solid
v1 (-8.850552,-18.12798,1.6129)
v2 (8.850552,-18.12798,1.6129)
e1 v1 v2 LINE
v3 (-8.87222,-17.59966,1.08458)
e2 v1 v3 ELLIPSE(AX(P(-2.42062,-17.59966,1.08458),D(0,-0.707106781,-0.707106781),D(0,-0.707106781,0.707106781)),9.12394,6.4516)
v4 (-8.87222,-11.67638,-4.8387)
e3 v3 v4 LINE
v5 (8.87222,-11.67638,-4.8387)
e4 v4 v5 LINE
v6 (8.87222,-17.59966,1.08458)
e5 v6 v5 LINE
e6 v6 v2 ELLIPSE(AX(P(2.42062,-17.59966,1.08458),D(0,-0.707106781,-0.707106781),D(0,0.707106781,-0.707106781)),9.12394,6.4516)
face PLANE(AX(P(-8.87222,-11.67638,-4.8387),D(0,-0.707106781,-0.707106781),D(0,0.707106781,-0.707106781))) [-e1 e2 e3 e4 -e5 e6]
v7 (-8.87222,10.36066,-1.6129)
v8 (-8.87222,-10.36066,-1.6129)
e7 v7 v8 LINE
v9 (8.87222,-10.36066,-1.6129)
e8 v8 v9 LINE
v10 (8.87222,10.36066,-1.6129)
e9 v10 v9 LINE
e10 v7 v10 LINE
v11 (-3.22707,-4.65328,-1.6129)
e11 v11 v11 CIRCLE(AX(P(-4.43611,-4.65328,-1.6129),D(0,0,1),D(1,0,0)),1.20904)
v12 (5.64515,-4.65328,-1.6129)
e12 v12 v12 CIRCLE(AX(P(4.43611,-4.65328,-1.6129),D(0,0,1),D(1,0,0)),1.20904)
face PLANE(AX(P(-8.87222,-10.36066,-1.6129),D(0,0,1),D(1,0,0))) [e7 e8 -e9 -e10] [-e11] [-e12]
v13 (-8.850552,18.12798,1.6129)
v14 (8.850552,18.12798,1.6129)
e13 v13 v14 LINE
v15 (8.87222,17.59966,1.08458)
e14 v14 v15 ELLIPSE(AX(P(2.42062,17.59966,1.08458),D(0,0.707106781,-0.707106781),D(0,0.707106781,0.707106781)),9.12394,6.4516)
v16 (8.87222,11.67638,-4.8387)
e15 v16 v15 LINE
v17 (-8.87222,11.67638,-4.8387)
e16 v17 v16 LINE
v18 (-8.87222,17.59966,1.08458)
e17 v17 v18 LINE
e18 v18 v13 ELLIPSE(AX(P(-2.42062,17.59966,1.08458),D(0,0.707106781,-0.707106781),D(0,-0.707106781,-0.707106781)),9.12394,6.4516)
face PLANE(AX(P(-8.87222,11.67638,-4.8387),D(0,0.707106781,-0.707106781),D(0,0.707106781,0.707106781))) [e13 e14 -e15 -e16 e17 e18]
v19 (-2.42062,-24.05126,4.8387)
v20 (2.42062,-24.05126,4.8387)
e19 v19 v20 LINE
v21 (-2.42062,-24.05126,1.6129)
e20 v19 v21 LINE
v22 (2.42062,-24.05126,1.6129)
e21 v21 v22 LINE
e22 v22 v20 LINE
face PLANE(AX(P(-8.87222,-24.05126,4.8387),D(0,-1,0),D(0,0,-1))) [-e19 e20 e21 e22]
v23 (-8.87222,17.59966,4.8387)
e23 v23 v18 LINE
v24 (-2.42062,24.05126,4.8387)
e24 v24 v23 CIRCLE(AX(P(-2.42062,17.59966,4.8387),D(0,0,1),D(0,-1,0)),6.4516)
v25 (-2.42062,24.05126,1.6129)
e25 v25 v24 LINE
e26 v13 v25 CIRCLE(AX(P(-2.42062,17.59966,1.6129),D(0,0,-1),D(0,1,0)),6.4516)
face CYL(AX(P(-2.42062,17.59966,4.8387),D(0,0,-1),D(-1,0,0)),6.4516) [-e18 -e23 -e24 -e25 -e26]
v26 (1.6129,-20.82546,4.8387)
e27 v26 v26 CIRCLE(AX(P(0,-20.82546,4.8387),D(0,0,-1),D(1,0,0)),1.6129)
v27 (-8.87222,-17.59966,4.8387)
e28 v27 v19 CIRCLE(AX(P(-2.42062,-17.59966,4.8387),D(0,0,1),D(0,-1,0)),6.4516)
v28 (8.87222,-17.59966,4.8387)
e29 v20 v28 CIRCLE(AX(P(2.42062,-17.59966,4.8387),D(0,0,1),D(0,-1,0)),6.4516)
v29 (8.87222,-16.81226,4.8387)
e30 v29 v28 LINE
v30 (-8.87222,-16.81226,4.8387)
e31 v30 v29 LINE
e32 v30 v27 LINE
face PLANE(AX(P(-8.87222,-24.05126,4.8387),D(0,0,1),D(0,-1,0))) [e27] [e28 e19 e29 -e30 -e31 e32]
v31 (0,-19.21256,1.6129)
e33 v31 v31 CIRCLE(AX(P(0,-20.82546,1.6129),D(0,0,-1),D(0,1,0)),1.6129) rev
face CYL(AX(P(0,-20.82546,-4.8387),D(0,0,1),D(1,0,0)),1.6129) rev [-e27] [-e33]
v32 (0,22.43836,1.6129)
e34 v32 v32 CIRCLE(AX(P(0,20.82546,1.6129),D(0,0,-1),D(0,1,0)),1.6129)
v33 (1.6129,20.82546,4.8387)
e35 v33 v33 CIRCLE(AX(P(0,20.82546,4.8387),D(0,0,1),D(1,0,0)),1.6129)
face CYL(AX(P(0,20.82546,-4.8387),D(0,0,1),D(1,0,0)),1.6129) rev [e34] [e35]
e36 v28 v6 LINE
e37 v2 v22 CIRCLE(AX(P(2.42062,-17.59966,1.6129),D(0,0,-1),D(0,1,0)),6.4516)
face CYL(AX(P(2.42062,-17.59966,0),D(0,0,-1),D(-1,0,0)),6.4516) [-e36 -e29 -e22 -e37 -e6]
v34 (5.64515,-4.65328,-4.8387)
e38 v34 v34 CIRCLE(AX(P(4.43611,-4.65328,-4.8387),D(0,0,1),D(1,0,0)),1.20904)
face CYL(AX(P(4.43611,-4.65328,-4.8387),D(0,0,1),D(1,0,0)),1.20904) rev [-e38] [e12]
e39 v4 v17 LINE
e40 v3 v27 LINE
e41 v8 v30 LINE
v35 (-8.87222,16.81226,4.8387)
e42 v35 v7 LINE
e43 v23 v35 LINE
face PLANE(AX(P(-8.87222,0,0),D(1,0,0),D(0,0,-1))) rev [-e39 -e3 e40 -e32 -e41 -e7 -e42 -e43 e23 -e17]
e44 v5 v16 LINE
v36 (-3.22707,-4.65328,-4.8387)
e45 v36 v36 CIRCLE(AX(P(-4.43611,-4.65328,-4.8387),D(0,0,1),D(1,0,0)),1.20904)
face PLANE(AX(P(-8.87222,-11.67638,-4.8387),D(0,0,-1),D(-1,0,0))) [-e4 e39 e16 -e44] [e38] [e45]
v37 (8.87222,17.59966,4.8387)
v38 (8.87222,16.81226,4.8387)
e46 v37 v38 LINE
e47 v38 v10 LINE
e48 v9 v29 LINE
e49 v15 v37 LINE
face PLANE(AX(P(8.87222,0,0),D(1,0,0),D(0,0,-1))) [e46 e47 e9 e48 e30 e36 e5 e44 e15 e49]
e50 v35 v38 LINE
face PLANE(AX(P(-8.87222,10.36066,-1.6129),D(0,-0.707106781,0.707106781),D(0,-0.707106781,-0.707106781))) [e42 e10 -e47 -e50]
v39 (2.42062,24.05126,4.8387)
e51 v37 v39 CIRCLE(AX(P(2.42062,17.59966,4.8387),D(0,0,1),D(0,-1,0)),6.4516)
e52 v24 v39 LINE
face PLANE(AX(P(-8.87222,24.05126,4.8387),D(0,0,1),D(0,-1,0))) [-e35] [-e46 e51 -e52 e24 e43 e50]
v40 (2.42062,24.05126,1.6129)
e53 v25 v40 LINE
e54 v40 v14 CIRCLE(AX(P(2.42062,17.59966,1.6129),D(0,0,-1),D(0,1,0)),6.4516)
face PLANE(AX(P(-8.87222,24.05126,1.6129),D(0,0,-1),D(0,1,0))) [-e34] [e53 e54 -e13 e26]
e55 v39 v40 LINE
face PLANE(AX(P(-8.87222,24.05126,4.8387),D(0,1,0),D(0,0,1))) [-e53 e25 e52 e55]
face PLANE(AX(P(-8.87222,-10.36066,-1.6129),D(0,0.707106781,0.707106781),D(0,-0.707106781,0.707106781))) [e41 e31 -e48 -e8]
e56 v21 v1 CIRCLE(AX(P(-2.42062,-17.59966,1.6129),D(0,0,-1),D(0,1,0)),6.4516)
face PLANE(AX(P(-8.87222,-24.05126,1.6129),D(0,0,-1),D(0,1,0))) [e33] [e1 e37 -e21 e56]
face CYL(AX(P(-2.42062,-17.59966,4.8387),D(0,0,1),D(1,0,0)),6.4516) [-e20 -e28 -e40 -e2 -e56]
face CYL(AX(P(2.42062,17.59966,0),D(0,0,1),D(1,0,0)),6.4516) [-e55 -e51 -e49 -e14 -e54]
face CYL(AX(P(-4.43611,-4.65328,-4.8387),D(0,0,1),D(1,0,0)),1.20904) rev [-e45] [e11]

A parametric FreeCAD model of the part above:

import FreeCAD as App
import Part
import Sketcher
Q = App.Units.Quantity


def edges_at(feature, points):
    """Names of the edges that pass closest to the given points."""
    edges = feature.Shape.Edges
    near = lambda p: min(range(len(edges)), key=lambda i: edges[i].distToShape(Part.Vertex(*p))[0])
    return sorted({f"Edge{near(p) + 1}" for p in points})

doc = App.newDocument("Part")
body = doc.addObject("PartDesign::Body", "Body")

# Sketch on YZ plane
sketch1 = body.newObject("Sketcher::SketchObject", "Sketch")
sketch1.AttachmentSupport = (doc.getObject("YZ_Plane"), [""])
sketch1.MapMode = "FlatFace"
sketch1.addGeometry(Part.LineSegment(App.Vector(24.1, 1.6, 0), App.Vector(24.1, 4.8, 0)), False)
sketch1.addGeometry(Part.LineSegment(App.Vector(24.1, 4.8, 0), App.Vector(16.8, 4.8, 0)), False)
sketch1.addGeometry(Part.LineSegment(App.Vector(16.8, 4.8, 0), App.Vector(10.4, -1.6, 0)), False)
sketch1.addGeometry(Part.LineSegment(App.Vector(10.4, -1.6, 0), App.Vector(-10.4, -1.6, 0)), False)
sketch1.addGeometry(Part.LineSegment(App.Vector(-10.4, -1.6, 0), App.Vector(-16.8, 4.8, 0)), False)
sketch1.addGeometry(Part.LineSegment(App.Vector(-16.8, 4.8, 0), App.Vector(-24.1, 4.8, 0)), False)
sketch1.addGeometry(Part.LineSegment(App.Vector(-24.1, 4.8, 0), App.Vector(-24.1, 1.6, 0)), False)
sketch1.addGeometry(Part.LineSegment(App.Vector(-24.1, 1.6, 0), App.Vector(-18.1, 1.6, 0)), False)
sketch1.addGeometry(Part.LineSegment(App.Vector(-18.1, 1.6, 0), App.Vector(-11.7, -4.8, 0)), False)
sketch1.addGeometry(Part.LineSegment(App.Vector(-11.7, -4.8, 0), App.Vector(11.7, -4.8, 0)), False)
sketch1.addGeometry(Part.LineSegment(App.Vector(11.7, -4.8, 0), App.Vector(18.1, 1.6, 0)), False)
sketch1.addGeometry(Part.LineSegment(App.Vector(18.1, 1.6, 0), App.Vector(24.1, 1.6, 0)), False)
sketch1.addConstraint(Sketcher.Constraint("Coincident", 0, 2, 1, 1))
sketch1.addConstraint(Sketcher.Constraint("Coincident", 1, 2, 2, 1))
sketch1.addConstraint(Sketcher.Constraint("Coincident", 2, 2, 3, 1))
sketch1.addConstraint(Sketcher.Constraint("Coincident", 3, 2, 4, 1))
sketch1.addConstraint(Sketcher.Constraint("Coincident", 4, 2, 5, 1))
sketch1.addConstraint(Sketcher.Constraint("Coincident", 5, 2, 6, 1))
sketch1.addConstraint(Sketcher.Constraint("Coincident", 6, 2, 7, 1))
sketch1.addConstraint(Sketcher.Constraint("Coincident", 7, 2, 8, 1))
sketch1.addConstraint(Sketcher.Constraint("Coincident", 8, 2, 9, 1))
sketch1.addConstraint(Sketcher.Constraint("Coincident", 9, 2, 10, 1))
sketch1.addConstraint(Sketcher.Constraint("Coincident", 10, 2, 11, 1))
sketch1.addConstraint(Sketcher.Constraint("Coincident", 11, 2, 0, 1))
sketch1.addConstraint(Sketcher.Constraint("Vertical", 0))
sketch1.addConstraint(Sketcher.Constraint("Horizontal", 1))
sketch1.addConstraint(Sketcher.Constraint("Horizontal", 3))
sketch1.addConstraint(Sketcher.Constraint("Horizontal", 5))
sketch1.addConstraint(Sketcher.Constraint("Vertical", 6))
sketch1.addConstraint(Sketcher.Constraint("Horizontal", 7))
sketch1.addConstraint(Sketcher.Constraint("Horizontal", 9))
sketch1.addConstraint(Sketcher.Constraint("Horizontal", 11))
sketch1.addConstraint(Sketcher.Constraint("Symmetric", 1, 2, 4, 2, -2))
sketch1.addConstraint(Sketcher.Constraint("Symmetric", 7, 2, 10, 2, -2))
sketch1.addConstraint(Sketcher.Constraint("Perpendicular", 2, 4))
sketch1.addConstraint(Sketcher.Constraint("Parallel", 4, 8))
sketch1.addConstraint(Sketcher.Constraint("Perpendicular", 8, 10))
sketch1.addConstraint(Sketcher.Constraint("Equal", 1, 5))
sketch1.addConstraint(Sketcher.Constraint("Equal", 2, 4))
sketch1.addConstraint(Sketcher.Constraint("Equal", 4, 8))
sketch1.addConstraint(Sketcher.Constraint("DistanceX", 1, 2, 1, 1, Q("0.285 in")))
sketch1.addConstraint(Sketcher.Constraint("DistanceY", 0, 1, 0, 2, Q("0.127 in")))
sketch1.addConstraint(Sketcher.Constraint("DistanceX", 3, 2, 3, 1, Q("0.8158 in")))
sketch1.addConstraint(Sketcher.Constraint("DistanceX", 7, 1, 7, 2, Q("0.2332 in")))
sketch1.addConstraint(Sketcher.Constraint("DistanceX", 2, 2, 1, 2, Q("0.254 in")))
sketch1.addConstraint(Sketcher.Constraint("DistanceY", -1, 1, 0, 2, Q("0.1905 in")))
pad1 = body.newObject("PartDesign::Pad", "Pad")
pad1.Profile = sketch1
pad1.Type = "TwoLengths"
pad1.Length = Q("0.3493 in")
pad1.Length2 = Q("0.3493 in")

# Sketch on XY plane
sketch2 = body.newObject("Sketcher::SketchObject", "Sketch001")
sketch2.AttachmentSupport = (doc.getObject("XY_Plane"), [""])
sketch2.MapMode = "FlatFace"
sketch2.AttachmentOffset = App.Placement(App.Vector(0, 0, 0.1905 * 25.4), App.Rotation())
sketch2.addGeometry(Part.Circle(App.Vector(0, 20.8, 0), App.Vector(0, 0, 1), 1.6), False)
sketch2.addConstraint(Sketcher.Constraint("PointOnObject", 0, 3, -2))
sketch2.addConstraint(Sketcher.Constraint("Diameter", 0, Q("0.127 in")))
sketch2.addConstraint(Sketcher.Constraint("DistanceY", -1, 1, 0, 3, Q("0.8199 in")))
pocket1 = body.newObject("PartDesign::Pocket", "Pocket")
pocket1.Profile = sketch2
pocket1.Type = "ThroughAll"
doc.recompute()

mirrored = body.newObject("PartDesign::Mirrored", "Mirrored")
mirrored.Originals = [pocket1]
mirrored.MirrorPlane = (doc.getObject("XZ_Plane"), [""])
body.Tip = mirrored

# Sketch on XY plane
sketch3 = body.newObject("Sketcher::SketchObject", "Sketch002")
sketch3.AttachmentSupport = (doc.getObject("XY_Plane"), [""])
sketch3.MapMode = "FlatFace"
sketch3.AttachmentOffset = App.Placement(App.Vector(0, 0, -0.0635 * 25.4), App.Rotation())
sketch3.addGeometry(Part.Circle(App.Vector(-4.4, -4.7, 0), App.Vector(0, 0, 1), 1.2), False)
sketch3.addGeometry(Part.Circle(App.Vector(4.4, -4.7, 0), App.Vector(0, 0, 1), 1.2), False)
sketch3.addConstraint(Sketcher.Constraint("Equal", 0, 1))
sketch3.addConstraint(Sketcher.Constraint("Symmetric", 0, 3, 1, 3, -2))
sketch3.addConstraint(Sketcher.Constraint("Diameter", 0, Q("0.0952 in")))
sketch3.addConstraint(Sketcher.Constraint("DistanceY", 0, 3, -1, 1, Q("0.1832 in")))
sketch3.addConstraint(Sketcher.Constraint("DistanceX", 0, 3, 1, 3, Q("0.3493 in")))
pocket2 = body.newObject("PartDesign::Pocket", "Pocket001")
pocket2.Profile = sketch3
pocket2.Type = "ThroughAll"
doc.recompute()

fillet = body.newObject("PartDesign::Fillet", "Fillet")
fillet.Base = (pocket2, edges_at(pocket2, [
    (-8.872, -24.051, 3.226),
    (8.872, -24.051, 3.226),
    (8.872, 24.051, 3.226),
    (-8.872, 24.051, 3.226),
]))
fillet.Radius = Q("0.254 in")

doc.recompute()
